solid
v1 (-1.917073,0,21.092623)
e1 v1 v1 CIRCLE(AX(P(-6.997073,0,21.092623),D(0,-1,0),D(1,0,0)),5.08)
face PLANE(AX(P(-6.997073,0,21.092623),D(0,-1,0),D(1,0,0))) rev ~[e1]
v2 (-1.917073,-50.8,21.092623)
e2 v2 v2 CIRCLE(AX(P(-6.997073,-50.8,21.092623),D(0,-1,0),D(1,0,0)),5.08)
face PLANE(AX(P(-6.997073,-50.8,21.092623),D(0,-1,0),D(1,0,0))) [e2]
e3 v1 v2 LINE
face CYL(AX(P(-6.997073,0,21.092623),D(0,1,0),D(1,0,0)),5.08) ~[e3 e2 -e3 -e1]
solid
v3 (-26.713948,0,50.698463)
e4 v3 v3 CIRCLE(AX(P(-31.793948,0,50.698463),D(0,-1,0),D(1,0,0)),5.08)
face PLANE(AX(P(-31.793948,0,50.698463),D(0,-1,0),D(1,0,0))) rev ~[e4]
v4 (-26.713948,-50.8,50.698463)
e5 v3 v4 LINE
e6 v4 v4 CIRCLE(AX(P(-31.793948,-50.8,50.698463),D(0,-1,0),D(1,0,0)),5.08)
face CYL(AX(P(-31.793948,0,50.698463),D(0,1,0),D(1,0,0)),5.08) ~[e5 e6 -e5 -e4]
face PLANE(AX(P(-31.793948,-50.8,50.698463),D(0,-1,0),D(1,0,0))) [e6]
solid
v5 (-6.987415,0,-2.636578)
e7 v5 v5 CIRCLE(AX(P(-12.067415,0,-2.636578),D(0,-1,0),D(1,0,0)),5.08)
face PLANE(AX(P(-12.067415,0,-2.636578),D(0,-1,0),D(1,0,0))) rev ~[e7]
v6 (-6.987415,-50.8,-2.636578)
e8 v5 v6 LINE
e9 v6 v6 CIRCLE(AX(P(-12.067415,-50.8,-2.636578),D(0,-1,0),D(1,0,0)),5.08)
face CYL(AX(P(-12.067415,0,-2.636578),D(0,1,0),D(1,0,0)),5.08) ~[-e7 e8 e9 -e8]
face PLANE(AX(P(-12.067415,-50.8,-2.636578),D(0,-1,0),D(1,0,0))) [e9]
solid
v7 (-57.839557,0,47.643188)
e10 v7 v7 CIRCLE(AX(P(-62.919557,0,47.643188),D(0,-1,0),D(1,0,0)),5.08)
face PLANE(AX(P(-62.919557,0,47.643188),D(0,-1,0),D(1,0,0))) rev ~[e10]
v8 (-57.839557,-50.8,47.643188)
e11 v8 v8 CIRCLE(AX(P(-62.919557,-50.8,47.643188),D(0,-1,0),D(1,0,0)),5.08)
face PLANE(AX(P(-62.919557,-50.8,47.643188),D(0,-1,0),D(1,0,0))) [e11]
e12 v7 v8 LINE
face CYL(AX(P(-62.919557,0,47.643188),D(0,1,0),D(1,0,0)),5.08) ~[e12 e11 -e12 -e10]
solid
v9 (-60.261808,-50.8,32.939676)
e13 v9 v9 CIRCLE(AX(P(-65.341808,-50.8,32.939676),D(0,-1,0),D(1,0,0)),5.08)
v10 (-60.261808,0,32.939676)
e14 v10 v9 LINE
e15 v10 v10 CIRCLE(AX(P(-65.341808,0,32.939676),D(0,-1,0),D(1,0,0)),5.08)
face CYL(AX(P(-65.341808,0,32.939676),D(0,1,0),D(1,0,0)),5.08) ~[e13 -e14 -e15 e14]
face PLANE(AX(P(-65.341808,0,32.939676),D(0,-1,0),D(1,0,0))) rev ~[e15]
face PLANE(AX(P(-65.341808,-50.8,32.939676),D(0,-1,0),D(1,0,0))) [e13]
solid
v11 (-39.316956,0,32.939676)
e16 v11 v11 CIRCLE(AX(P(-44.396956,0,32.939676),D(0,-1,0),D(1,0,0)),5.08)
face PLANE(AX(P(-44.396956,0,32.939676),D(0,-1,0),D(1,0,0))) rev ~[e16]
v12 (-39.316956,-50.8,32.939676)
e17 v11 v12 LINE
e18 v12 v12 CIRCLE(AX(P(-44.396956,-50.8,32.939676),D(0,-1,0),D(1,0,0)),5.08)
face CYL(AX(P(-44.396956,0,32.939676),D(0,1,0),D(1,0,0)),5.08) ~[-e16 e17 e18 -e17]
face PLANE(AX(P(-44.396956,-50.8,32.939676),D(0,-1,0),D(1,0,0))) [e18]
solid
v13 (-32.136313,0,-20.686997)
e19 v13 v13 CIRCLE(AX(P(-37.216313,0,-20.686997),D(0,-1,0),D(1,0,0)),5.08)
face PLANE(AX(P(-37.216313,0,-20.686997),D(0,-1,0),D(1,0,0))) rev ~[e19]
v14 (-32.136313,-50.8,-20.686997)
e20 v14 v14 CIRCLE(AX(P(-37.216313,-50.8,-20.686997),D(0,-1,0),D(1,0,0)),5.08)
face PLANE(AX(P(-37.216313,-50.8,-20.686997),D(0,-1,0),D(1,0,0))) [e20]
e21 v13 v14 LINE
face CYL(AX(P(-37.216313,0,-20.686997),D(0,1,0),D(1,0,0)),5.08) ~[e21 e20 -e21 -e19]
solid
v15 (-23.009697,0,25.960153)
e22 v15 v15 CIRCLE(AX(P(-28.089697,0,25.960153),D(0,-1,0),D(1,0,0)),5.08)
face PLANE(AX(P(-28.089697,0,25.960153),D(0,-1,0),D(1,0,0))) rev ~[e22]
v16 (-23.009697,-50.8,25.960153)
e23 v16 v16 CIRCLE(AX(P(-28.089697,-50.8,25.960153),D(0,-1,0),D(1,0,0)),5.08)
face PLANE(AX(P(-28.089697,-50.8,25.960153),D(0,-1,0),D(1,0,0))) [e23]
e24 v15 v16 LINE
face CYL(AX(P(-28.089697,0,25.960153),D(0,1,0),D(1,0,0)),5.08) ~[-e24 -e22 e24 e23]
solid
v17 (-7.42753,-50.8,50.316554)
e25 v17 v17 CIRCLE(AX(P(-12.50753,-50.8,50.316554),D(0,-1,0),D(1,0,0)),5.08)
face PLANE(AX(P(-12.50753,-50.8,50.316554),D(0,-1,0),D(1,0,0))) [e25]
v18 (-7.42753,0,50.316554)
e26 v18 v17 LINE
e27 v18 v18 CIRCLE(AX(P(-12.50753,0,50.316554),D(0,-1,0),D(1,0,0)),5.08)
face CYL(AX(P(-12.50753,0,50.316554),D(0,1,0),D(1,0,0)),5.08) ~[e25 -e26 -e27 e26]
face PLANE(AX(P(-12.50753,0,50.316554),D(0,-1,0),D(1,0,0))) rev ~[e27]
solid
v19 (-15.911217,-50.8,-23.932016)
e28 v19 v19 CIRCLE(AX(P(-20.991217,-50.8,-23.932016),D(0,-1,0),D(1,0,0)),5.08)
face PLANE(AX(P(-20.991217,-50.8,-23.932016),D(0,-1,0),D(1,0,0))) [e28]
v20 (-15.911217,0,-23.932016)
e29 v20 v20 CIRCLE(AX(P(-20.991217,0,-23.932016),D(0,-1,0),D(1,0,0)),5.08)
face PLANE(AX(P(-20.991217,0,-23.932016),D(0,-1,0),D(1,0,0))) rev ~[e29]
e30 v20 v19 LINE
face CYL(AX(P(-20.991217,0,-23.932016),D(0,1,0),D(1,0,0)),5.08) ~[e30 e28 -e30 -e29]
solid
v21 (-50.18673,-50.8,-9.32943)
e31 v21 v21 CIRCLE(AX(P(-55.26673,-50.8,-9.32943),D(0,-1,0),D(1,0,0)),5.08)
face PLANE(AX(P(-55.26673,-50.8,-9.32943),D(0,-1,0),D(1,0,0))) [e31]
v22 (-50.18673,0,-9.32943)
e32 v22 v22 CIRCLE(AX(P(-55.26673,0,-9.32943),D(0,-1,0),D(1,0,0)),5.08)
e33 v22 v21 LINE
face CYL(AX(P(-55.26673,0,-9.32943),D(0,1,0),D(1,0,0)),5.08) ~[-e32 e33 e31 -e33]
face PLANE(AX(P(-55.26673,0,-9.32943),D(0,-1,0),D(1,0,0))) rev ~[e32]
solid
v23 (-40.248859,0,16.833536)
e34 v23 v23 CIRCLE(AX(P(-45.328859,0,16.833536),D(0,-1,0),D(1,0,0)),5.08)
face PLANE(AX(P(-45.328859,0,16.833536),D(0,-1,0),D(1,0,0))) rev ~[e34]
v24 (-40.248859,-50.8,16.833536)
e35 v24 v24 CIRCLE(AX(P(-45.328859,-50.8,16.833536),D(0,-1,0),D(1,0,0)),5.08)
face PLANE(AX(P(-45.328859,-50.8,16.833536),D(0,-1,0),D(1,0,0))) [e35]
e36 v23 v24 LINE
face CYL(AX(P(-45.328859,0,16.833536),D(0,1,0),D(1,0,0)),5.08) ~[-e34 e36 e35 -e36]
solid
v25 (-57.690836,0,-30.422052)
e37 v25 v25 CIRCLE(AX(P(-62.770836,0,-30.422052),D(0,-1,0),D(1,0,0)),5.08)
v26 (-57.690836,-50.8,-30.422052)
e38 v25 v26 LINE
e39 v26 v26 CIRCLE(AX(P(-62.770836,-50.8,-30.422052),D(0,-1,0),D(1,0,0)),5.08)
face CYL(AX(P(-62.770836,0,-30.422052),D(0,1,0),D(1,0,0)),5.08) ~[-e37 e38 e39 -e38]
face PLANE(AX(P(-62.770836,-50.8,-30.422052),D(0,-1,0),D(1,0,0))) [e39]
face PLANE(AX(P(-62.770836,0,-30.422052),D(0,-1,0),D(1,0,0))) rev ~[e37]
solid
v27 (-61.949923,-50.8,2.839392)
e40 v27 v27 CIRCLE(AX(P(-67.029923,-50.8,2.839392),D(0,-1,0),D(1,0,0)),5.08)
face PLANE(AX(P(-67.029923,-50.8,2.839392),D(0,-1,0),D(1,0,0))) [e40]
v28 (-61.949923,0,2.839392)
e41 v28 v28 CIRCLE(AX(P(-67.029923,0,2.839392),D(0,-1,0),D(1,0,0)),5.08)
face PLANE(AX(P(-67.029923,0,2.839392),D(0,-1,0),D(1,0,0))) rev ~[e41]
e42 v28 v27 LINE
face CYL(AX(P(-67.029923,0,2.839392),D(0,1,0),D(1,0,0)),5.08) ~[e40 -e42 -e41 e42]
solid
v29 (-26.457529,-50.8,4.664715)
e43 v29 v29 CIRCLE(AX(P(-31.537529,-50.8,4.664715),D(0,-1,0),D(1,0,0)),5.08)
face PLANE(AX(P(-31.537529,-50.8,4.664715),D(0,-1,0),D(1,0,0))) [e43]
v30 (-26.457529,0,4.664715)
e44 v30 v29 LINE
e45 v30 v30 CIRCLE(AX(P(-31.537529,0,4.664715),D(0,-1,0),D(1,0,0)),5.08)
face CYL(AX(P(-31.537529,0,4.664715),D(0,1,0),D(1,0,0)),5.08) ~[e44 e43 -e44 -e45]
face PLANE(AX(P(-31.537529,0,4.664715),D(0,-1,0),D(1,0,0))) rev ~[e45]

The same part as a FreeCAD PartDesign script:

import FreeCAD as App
import Part
import Sketcher
Q = App.Units.Quantity

doc = App.newDocument("Part")
body = doc.addObject("PartDesign::Body", "Body")

# Sketch on XZ plane
sketch1 = body.newObject("Sketcher::SketchObject", "Sketch")
sketch1.AttachmentSupport = (doc.getObject("XZ_Plane"), [""])
sketch1.MapMode = "FlatFace"
sketch1.addGeometry(Part.Circle(App.Vector(-63, 48, 0), App.Vector(0, 0, 1), 5), False)
sketch1.addConstraint([
    Sketcher.Constraint("Diameter", 0, Q("0.4 in")),
    Sketcher.Constraint("DistanceY", -1, 1, 0, 3, Q("47.643188 mm")),
    Sketcher.Constraint("DistanceX", 0, 3, -1, 1, Q("62.919557 mm")),
])
pad1 = body.newObject("PartDesign::Pad", "Pad")
pad1.Profile = sketch1
pad1.Length = Q("2 in")
body2 = doc.addObject("PartDesign::Body", "Body001")

# Sketch on XZ plane
sketch2 = body2.newObject("Sketcher::SketchObject", "Sketch001")
sketch2.AttachmentSupport = (doc.getObject("XZ_Plane001"), [""])
sketch2.MapMode = "FlatFace"
sketch2.addGeometry(Part.Circle(App.Vector(-32, 51, 0), App.Vector(0, 0, 1), 5), False)
sketch2.addConstraint([
    Sketcher.Constraint("Diameter", 0, Q("0.4 in")),
    Sketcher.Constraint("DistanceX", 0, 3, -1, 1, Q("31.793948 mm")),
    Sketcher.Constraint("DistanceY", -1, 1, 0, 3, Q("50.698463 mm")),
])
pad2 = body2.newObject("PartDesign::Pad", "Pad001")
pad2.Profile = sketch2
pad2.Length = Q("2 in")
body3 = doc.addObject("PartDesign::Body", "Body002")

# Sketch on XZ plane
sketch3 = body3.newObject("Sketcher::SketchObject", "Sketch002")
sketch3.AttachmentSupport = (doc.getObject("XZ_Plane002"), [""])
sketch3.MapMode = "FlatFace"
sketch3.addGeometry(Part.Circle(App.Vector(-13, 50, 0), App.Vector(0, 0, 1), 5), False)
sketch3.addConstraint([
    Sketcher.Constraint("Diameter", 0, Q("0.4 in")),
    Sketcher.Constraint("DistanceX", 0, 3, -1, 1, Q("12.50753 mm")),
    Sketcher.Constraint("DistanceY", -1, 1, 0, 3, Q("50.316554 mm")),
])
pad3 = body3.newObject("PartDesign::Pad", "Pad002")
pad3.Profile = sketch3
pad3.Length = Q("2 in")
body4 = doc.addObject("PartDesign::Body", "Body003")

# Sketch on XZ plane
sketch4 = body4.newObject("Sketcher::SketchObject", "Sketch003")
sketch4.AttachmentSupport = (doc.getObject("XZ_Plane003"), [""])
sketch4.MapMode = "FlatFace"
sketch4.addGeometry(Part.Circle(App.Vector(-65, 33, 0), App.Vector(0, 0, 1), 5), False)
sketch4.addConstraint([
    Sketcher.Constraint("Diameter", 0, Q("0.4 in")),
    Sketcher.Constraint("DistanceX", 0, 3, -1, 1, Q("65.341808 mm")),
    Sketcher.Constraint("DistanceY", -1, 1, 0, 3, Q("32.939676 mm")),
])
pad4 = body4.newObject("PartDesign::Pad", "Pad003")
pad4.Profile = sketch4
pad4.Length = Q("2 in")
body5 = doc.addObject("PartDesign::Body", "Body004")

# Sketch on XZ plane
sketch5 = body5.newObject("Sketcher::SketchObject", "Sketch004")
sketch5.AttachmentSupport = (doc.getObject("XZ_Plane004"), [""])
sketch5.MapMode = "FlatFace"
sketch5.addGeometry(Part.Circle(App.Vector(-44, 33, 0), App.Vector(0, 0, 1), 5), False)
sketch5.addConstraint([
    Sketcher.Constraint("Diameter", 0, Q("0.4 in")),
    Sketcher.Constraint("DistanceX", 0, 3, -1, 1, Q("44.396956 mm")),
    Sketcher.Constraint("DistanceY", -1, 1, 0, 3, Q("32.939676 mm")),
])
pad5 = body5.newObject("PartDesign::Pad", "Pad004")
pad5.Profile = sketch5
pad5.Length = Q("2 in")
body6 = doc.addObject("PartDesign::Body", "Body005")
body6.AllowCompound = True

# Sketch on XZ plane
sketch6 = body6.newObject("Sketcher::SketchObject", "Sketch005")
sketch6.AttachmentSupport = (doc.getObject("XZ_Plane005"), [""])
sketch6.MapMode = "FlatFace"
sketch6.addGeometry([
    Part.Circle(App.Vector(-45, 17, 0), App.Vector(0, 0, 1), 5),  # 0
    Part.Circle(App.Vector(-28, 26, 0), App.Vector(0, 0, 1), 5),  # 1
    Part.Circle(App.Vector(-32, 5, 0), App.Vector(0, 0, 1), 5),  # 2
    Part.Circle(App.Vector(-67, 3, 0), App.Vector(0, 0, 1), 5),  # 3
    Part.Circle(App.Vector(-7, 21, 0), App.Vector(0, 0, 1), 5),  # 4
    Part.Circle(App.Vector(-12, -3, 0), App.Vector(0, 0, 1), 5),  # 5
    Part.Circle(App.Vector(-55, -9, 0), App.Vector(0, 0, 1), 5),  # 6
    Part.Circle(App.Vector(-37, -21, 0), App.Vector(0, 0, 1), 5),  # 7
    Part.Circle(App.Vector(-21, -24, 0), App.Vector(0, 0, 1), 5),  # 8
    Part.Circle(App.Vector(-63, -30, 0), App.Vector(0, 0, 1), 5),  # 9
], False)
sketch6.addConstraint([
    Sketcher.Constraint("Equal", 0, 1),
    Sketcher.Constraint("Equal", 1, 2),
    Sketcher.Constraint("Equal", 2, 3),
    Sketcher.Constraint("Equal", 3, 4),
    Sketcher.Constraint("Equal", 4, 5),
    Sketcher.Constraint("Equal", 5, 6),
    Sketcher.Constraint("Equal", 6, 7),
    Sketcher.Constraint("Equal", 7, 8),
    Sketcher.Constraint("Equal", 8, 9),
    Sketcher.Constraint("Diameter", 0, Q("0.4 in")),
    Sketcher.Constraint("DistanceY", 5, 3, 4, 3, Q("23.729201 mm")),
    Sketcher.Constraint("DistanceX", 6, 3, 2, 3, Q("23.729201 mm")),
    Sketcher.Constraint("DistanceX", 8, 3, 5, 3, Q("8.923802 mm")),
    Sketcher.Constraint("DistanceX", 0, 3, -1, 1, Q("45.328859 mm")),
    Sketcher.Constraint("DistanceX", 2, 3, -1, 1, Q("31.537529 mm")),
    Sketcher.Constraint("DistanceY", 5, 3, -1, 1, Q("2.636578 mm")),
    Sketcher.Constraint("DistanceY", 6, 3, -1, 1, Q("9.32943 mm")),
    Sketcher.Constraint("DistanceY", 2, 3, 0, 3, Q("12.168821 mm")),
    Sketcher.Constraint("DistanceX", 2, 3, 1, 3, Q("3.447832 mm")),
    Sketcher.Constraint("DistanceY", 3, 3, 1, 3, Q("23.120761 mm")),
    Sketcher.Constraint("DistanceY", 4, 3, 1, 3, Q("4.86753 mm")),
    Sketcher.Constraint("DistanceX", 3, 3, 4, 3, Q("60.03285 mm")),
    Sketcher.Constraint("DistanceY", 7, 3, 5, 3, Q("18.050419 mm")),
    Sketcher.Constraint("DistanceX", 3, 3, 7, 3, Q("29.81361 mm")),
    Sketcher.Constraint("DistanceY", 8, 3, 7, 3, Q("3.245019 mm")),
    Sketcher.Constraint("DistanceY", 8, 3, 2, 3, Q("28.596731 mm")),
    Sketcher.Constraint("DistanceY", 9, 3, 6, 3, Q("21.092622 mm")),
    Sketcher.Constraint("DistanceX", 9, 3, 8, 3, Q("41.779619 mm")),
    Sketcher.Constraint("DistanceX", 3, 3, -1, 1, Q("67.029923 mm")),
    Sketcher.Constraint("DistanceX", 5, 3, -1, 1, Q("12.067415 mm")),
])
pad6 = body6.newObject("PartDesign::Pad", "Pad005")
pad6.Profile = sketch6
pad6.Length = Q("2 in")

doc.recompute()
